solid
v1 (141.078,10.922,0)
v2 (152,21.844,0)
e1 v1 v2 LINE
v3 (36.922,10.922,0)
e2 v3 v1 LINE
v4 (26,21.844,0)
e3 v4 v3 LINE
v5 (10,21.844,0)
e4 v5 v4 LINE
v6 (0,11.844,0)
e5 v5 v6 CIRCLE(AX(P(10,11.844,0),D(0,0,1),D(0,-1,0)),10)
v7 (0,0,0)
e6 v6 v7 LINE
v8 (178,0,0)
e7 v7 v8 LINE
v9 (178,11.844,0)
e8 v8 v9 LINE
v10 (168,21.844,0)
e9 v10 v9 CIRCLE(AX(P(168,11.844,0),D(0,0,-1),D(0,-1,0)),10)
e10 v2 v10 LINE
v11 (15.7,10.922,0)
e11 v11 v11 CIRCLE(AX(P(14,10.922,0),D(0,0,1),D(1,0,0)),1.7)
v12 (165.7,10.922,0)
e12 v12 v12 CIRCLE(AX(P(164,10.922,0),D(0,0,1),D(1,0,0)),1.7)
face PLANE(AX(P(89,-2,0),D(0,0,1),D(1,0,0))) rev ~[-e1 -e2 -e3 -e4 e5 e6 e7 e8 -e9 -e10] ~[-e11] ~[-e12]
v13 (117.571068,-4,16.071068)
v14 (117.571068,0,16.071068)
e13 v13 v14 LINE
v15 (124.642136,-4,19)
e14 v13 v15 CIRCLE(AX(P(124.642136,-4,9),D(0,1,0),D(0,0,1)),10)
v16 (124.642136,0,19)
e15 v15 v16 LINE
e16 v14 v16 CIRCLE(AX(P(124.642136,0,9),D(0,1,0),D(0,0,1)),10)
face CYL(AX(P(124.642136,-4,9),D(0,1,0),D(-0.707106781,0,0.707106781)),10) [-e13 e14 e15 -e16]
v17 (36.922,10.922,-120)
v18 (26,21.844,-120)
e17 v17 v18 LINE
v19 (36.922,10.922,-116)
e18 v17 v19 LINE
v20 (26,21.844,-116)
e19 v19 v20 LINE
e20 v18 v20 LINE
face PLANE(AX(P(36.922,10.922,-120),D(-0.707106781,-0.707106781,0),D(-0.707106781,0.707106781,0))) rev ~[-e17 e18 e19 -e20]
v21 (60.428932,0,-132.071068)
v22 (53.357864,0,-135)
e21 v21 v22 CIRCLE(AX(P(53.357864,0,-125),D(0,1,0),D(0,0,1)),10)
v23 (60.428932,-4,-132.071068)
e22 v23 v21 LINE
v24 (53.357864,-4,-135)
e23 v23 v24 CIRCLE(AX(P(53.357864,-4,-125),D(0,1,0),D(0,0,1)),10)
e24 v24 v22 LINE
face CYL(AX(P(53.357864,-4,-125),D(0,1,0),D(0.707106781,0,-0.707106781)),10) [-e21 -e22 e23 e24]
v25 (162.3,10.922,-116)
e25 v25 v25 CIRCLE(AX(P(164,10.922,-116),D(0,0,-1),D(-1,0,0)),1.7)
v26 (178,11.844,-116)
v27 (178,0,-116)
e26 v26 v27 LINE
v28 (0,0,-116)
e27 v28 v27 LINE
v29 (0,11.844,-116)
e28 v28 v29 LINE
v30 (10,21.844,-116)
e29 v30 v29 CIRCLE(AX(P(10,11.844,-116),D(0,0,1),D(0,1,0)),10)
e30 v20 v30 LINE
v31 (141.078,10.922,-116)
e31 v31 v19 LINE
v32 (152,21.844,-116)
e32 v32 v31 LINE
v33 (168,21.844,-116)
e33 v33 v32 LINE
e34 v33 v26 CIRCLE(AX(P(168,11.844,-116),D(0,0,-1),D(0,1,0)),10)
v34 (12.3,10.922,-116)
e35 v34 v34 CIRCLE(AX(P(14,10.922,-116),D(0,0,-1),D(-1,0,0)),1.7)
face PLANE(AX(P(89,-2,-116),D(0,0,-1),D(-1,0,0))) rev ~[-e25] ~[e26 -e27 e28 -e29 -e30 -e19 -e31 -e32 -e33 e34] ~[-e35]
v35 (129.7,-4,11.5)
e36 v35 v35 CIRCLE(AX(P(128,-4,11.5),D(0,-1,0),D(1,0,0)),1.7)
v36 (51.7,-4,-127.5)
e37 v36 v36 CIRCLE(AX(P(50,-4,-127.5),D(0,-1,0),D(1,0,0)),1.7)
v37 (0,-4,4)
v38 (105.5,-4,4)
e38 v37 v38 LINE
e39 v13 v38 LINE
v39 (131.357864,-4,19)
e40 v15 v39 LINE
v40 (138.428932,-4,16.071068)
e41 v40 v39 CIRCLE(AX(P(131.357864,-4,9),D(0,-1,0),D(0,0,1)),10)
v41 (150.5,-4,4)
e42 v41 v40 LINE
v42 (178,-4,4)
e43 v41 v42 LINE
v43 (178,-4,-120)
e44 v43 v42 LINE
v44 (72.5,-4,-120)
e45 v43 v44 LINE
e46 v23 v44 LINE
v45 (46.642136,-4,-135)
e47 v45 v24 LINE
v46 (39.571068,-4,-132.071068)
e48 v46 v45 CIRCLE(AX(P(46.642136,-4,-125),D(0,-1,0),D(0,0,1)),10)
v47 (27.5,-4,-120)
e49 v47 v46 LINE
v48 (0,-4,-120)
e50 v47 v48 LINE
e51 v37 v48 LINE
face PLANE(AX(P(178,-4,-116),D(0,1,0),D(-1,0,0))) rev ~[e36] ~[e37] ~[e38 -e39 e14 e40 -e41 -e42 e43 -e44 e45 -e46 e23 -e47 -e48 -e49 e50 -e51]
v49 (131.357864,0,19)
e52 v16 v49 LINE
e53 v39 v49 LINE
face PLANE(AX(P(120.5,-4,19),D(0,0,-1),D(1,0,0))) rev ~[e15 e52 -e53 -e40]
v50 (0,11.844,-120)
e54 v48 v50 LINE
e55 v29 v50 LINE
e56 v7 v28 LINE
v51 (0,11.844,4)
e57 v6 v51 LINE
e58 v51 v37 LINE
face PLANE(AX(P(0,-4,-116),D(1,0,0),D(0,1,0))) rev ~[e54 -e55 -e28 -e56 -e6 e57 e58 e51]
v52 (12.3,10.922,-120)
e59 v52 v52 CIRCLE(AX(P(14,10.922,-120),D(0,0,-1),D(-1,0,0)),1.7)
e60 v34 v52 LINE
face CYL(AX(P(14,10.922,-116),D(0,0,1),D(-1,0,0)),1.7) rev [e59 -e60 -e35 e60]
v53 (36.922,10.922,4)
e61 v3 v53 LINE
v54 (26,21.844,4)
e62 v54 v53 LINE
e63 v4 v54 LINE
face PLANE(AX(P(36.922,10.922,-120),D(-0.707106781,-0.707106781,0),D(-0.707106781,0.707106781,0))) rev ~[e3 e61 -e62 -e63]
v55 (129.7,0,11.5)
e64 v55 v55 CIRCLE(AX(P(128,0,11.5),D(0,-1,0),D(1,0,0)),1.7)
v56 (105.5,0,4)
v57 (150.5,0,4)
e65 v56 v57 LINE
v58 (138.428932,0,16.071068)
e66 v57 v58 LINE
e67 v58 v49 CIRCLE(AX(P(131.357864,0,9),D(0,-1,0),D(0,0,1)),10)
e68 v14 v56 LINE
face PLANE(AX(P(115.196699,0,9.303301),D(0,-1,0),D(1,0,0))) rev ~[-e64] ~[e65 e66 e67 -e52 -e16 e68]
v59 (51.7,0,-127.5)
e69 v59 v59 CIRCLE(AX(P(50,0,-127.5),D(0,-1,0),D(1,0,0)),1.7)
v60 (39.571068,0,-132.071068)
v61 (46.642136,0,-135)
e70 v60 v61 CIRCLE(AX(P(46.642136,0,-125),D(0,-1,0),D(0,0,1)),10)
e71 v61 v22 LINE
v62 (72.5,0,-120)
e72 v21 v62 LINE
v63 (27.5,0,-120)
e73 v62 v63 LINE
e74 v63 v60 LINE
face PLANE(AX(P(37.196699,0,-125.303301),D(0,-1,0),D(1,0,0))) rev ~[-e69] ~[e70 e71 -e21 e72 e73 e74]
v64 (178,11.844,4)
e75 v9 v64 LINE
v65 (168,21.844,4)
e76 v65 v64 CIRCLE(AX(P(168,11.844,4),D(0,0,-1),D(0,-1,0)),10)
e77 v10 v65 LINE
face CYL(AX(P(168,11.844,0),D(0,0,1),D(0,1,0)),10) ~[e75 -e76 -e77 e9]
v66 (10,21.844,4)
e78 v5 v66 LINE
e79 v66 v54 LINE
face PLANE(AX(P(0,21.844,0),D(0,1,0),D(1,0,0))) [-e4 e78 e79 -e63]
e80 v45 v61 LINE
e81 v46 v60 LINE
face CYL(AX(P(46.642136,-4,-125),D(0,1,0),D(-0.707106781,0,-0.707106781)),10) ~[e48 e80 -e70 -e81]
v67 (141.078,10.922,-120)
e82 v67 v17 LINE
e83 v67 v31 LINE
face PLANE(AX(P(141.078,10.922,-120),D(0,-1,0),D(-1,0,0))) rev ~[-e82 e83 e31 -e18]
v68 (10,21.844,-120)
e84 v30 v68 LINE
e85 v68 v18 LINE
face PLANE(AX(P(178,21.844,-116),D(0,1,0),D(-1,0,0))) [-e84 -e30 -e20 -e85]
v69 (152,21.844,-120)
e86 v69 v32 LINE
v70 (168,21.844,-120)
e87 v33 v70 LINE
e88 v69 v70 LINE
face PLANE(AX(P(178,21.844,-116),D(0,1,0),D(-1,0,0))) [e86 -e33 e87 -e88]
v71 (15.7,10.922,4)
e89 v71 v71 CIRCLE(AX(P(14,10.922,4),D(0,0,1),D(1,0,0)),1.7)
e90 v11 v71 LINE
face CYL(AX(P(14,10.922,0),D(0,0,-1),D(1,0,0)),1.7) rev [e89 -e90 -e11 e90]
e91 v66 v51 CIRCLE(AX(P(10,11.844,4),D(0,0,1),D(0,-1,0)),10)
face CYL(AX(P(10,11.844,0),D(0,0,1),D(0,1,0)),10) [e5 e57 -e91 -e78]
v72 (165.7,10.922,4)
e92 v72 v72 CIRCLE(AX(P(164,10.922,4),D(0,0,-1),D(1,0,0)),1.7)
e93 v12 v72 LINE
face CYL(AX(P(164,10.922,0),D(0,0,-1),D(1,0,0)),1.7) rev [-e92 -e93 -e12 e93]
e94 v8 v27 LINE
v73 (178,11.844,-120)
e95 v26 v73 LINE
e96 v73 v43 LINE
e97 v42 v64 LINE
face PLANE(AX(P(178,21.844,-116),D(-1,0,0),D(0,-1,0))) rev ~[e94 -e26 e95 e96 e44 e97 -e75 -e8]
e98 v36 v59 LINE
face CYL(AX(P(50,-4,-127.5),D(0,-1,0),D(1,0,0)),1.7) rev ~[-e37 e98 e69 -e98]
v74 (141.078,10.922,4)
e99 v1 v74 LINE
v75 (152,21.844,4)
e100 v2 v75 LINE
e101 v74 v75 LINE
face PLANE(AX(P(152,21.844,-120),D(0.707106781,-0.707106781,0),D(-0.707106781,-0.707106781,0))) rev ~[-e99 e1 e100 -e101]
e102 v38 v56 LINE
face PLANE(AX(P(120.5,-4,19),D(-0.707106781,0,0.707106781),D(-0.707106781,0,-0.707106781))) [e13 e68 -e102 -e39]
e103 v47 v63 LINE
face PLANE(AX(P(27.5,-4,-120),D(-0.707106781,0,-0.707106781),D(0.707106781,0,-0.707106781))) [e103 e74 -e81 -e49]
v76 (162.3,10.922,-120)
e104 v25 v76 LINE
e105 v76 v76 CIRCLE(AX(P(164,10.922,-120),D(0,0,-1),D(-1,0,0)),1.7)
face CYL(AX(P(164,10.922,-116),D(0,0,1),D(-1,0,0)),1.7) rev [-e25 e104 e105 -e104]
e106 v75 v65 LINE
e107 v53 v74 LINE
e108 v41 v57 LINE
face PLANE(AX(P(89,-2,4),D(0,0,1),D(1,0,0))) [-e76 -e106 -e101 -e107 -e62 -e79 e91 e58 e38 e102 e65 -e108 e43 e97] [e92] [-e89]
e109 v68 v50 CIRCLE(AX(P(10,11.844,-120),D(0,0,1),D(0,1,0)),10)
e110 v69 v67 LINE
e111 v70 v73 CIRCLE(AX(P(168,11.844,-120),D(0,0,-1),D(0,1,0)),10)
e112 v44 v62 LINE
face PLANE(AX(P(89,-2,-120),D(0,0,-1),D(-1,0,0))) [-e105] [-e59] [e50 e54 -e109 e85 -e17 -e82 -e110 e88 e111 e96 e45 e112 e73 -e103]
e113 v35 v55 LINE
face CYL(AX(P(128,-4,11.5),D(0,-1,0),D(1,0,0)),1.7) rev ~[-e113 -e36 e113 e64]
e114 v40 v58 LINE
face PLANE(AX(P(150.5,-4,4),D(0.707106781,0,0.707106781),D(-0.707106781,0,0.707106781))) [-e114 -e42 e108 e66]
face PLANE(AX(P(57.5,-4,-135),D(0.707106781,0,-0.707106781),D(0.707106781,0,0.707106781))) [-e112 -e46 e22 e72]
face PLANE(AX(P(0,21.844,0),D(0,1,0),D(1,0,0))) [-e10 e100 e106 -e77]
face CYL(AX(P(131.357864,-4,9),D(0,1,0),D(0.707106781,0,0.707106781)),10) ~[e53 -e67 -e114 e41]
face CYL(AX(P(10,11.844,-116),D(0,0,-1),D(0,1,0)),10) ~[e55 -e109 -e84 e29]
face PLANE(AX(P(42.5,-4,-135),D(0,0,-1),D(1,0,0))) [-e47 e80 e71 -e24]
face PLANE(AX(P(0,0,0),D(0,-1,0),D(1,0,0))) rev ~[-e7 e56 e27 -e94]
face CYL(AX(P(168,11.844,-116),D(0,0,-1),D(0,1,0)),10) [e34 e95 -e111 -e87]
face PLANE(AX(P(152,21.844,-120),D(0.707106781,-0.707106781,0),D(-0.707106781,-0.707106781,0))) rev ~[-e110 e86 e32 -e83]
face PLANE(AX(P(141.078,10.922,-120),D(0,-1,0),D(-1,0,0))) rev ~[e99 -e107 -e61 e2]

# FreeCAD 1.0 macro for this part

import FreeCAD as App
import Part
import Sketcher
Q = App.Units.Quantity


def edges_at(feature, points):
    """Names of the edges that pass closest to the given points."""
    edges = feature.Shape.Edges
    near = lambda p: min(range(len(edges)), key=lambda i: edges[i].distToShape(Part.Vertex(*p))[0])
    return sorted({f"Edge{near(p) + 1}" for p in points})

doc = App.newDocument("Part")
params = doc.addObject("Spreadsheet::Sheet", "Params")
for row, (alias, value) in enumerate([
    ("sketch1_diameter", "3.4 mm"),
    ("sketch1_width", "178 mm"),
    ("pad1_length", "4 mm"),
    ("sketch2_width", "178 mm"),
    ("sketch2_height", "4 mm"),
    ("pad2_length", "116 mm"),
    ("sketch3_diameter", "3.4 mm"),
    ("sketch3_width", "178 mm"),
    ("pad3_length", "4 mm"),
    ("fillet_radius", "10 mm"),
    ("sketch4_diameter", "3.4 mm"),
    ("sketch4_width", "15 mm"),
    ("sketch4_width2", "45 mm"),
    ("pad4_length", "4 mm"),
    ("fillet2_radius", "10 mm"),
    ("sketch5_diameter", "3.4 mm"),
    ("sketch5_width", "126 mm"),
], start=1):
    params.set(f"A{row}", alias)
    params.set(f"B{row}", "=" + value)
    params.setAlias(f"B{row}", alias)

body = doc.addObject("PartDesign::Body", "Body")

sketch1 = body.newObject("Sketcher::SketchObject", "Sketch")
sketch1.AttachmentSupport = (doc.getObject("XY_Plane"), [""])
sketch1.MapMode = "FlatFace"
sketch1.addGeometry([
    Part.LineSegment(App.Vector(0, -4, 0), App.Vector(178, -4, 0)),
    Part.LineSegment(App.Vector(178, -4, 0), App.Vector(178, 21.8, 0)),
    Part.LineSegment(App.Vector(178, 21.8, 0), App.Vector(0, 21.8, 0)),
    Part.LineSegment(App.Vector(0, 21.8, 0), App.Vector(0, -4, 0)),
    Part.Circle(App.Vector(14, 10.9, 0), App.Vector(0, 0, 1), 1.7),
    Part.Circle(App.Vector(164, 10.9, 0), App.Vector(0, 0, 1), 1.7),
], False)
sketch1.addConstraint([
    Sketcher.Constraint("Coincident", 0, 2, 1, 1),
    Sketcher.Constraint("Coincident", 1, 2, 2, 1),
    Sketcher.Constraint("Coincident", 2, 2, 3, 1),
    Sketcher.Constraint("Coincident", 3, 2, 0, 1),
    Sketcher.Constraint("Horizontal", 0),
    Sketcher.Constraint("Vertical", 1),
    Sketcher.Constraint("Horizontal", 2),
    Sketcher.Constraint("Vertical", 3),
    Sketcher.Constraint("Equal", 4, 5),
    Sketcher.Constraint("PointOnObject", 2, 2, -2),
    Sketcher.Constraint("Horizontal", 4, 3, 5, 3),
    Sketcher.Constraint("Diameter", 4, Q("3.4 mm")),
    Sketcher.Constraint("DistanceX", 0, 1, 0, 2, Q("178 mm")),
    Sketcher.Constraint("DistanceX", -1, 1, 4, 3, Q("14 mm")),
    Sketcher.Constraint("DistanceX", -1, 1, 5, 3, Q("164 mm")),
    Sketcher.Constraint("DistanceY", 0, 2, -1, 1, Q("4 mm")),
    Sketcher.Constraint("DistanceY", 1, 1, 1, 2, Q("25.844 mm")),
    Sketcher.Constraint("DistanceY", -1, 1, 4, 3, Q("10.922 mm")),
])
sketch1.setExpression("Constraints[11]", "Params.sketch1_diameter")
sketch1.setExpression("Constraints[12]", "Params.sketch1_width")
pad1 = body.newObject("PartDesign::Pad", "Pad")
pad1.Profile = sketch1
pad1.setExpression("Length", "Params.pad1_length")

sketch2 = body.newObject("Sketcher::SketchObject", "Sketch001")
sketch2.AttachmentSupport = (doc.getObject("XY_Plane"), [""])
sketch2.MapMode = "FlatFace"
sketch2.addGeometry([
    Part.LineSegment(App.Vector(0, 0, 0), App.Vector(0, -4, 0)),
    Part.LineSegment(App.Vector(0, -4, 0), App.Vector(178, -4, 0)),
    Part.LineSegment(App.Vector(178, -4, 0), App.Vector(178, 0, 0)),
    Part.LineSegment(App.Vector(178, 0, 0), App.Vector(0, 0, 0)),
], False)
sketch2.addConstraint([
    Sketcher.Constraint("Coincident", 0, 2, 1, 1),
    Sketcher.Constraint("Coincident", 1, 2, 2, 1),
    Sketcher.Constraint("Coincident", 2, 2, 3, 1),
    Sketcher.Constraint("Coincident", 3, 2, 0, 1),
    Sketcher.Constraint("Vertical", 0),
    Sketcher.Constraint("Horizontal", 1),
    Sketcher.Constraint("Vertical", 2),
    Sketcher.Constraint("Horizontal", 3),
    Sketcher.Constraint("Coincident", 3, 2, -1, 1),
    Sketcher.Constraint("DistanceX", 1, 1, 1, 2, Q("178 mm")),
    Sketcher.Constraint("DistanceY", 0, 2, 0, 1, Q("4 mm")),
])
sketch2.setExpression("Constraints[9]", "Params.sketch2_width")
sketch2.setExpression("Constraints[10]", "Params.sketch2_height")
pad2 = body.newObject("PartDesign::Pad", "Pad001")
pad2.Profile = sketch2
pad2.setExpression("Length", "Params.pad2_length")
pad2.Reversed = True

sketch3 = body.newObject("Sketcher::SketchObject", "Sketch002")
sketch3.AttachmentSupport = (doc.getObject("XY_Plane"), [""])
sketch3.MapMode = "FlatFace"
sketch3.AttachmentOffset = App.Placement(App.Vector(0, 0, -116), App.Rotation())
sketch3.addGeometry([
    Part.LineSegment(App.Vector(178, -4, 0), App.Vector(0, -4, 0)),
    Part.LineSegment(App.Vector(0, -4, 0), App.Vector(0, 21.8, 0)),
    Part.LineSegment(App.Vector(0, 21.8, 0), App.Vector(178, 21.8, 0)),
    Part.LineSegment(App.Vector(178, 21.8, 0), App.Vector(178, -4, 0)),
    Part.Circle(App.Vector(164, 10.9, 0), App.Vector(0, 0, 1), 1.7),
    Part.Circle(App.Vector(14, 10.9, 0), App.Vector(0, 0, 1), 1.7),
], False)
sketch3.addConstraint([
    Sketcher.Constraint("Coincident", 0, 2, 1, 1),
    Sketcher.Constraint("Coincident", 1, 2, 2, 1),
    Sketcher.Constraint("Coincident", 2, 2, 3, 1),
    Sketcher.Constraint("Coincident", 3, 2, 0, 1),
    Sketcher.Constraint("Horizontal", 0),
    Sketcher.Constraint("Vertical", 1),
    Sketcher.Constraint("Horizontal", 2),
    Sketcher.Constraint("Vertical", 3),
    Sketcher.Constraint("Equal", 4, 5),
    Sketcher.Constraint("PointOnObject", 0, 2, -2),
    Sketcher.Constraint("Horizontal", 4, 3, 5, 3),
    Sketcher.Constraint("Diameter", 4, Q("3.4 mm")),
    Sketcher.Constraint("DistanceX", 0, 2, 0, 1, Q("178 mm")),
    Sketcher.Constraint("DistanceX", -1, 1, 4, 3, Q("164 mm")),
    Sketcher.Constraint("DistanceX", -1, 1, 5, 3, Q("14 mm")),
    Sketcher.Constraint("DistanceY", 0, 2, -1, 1, Q("4 mm")),
    Sketcher.Constraint("DistanceY", 1, 1, 1, 2, Q("25.844 mm")),
    Sketcher.Constraint("DistanceY", -1, 1, 4, 3, Q("10.922 mm")),
])
sketch3.setExpression("Constraints[11]", "Params.sketch3_diameter")
sketch3.setExpression("Constraints[12]", "Params.sketch3_width")
pad3 = body.newObject("PartDesign::Pad", "Pad002")
pad3.Profile = sketch3
pad3.setExpression("Length", "Params.pad3_length")
pad3.Reversed = True
doc.recompute()

fillet = body.newObject("PartDesign::Fillet", "Fillet")
fillet.Base = (pad3, edges_at(pad3, [
    (0, 21.844, 2),
    (178, 21.844, 2),
    (0, 21.844, -118),
    (178, 21.844, -118),
]))
fillet.setExpression("Radius", "Params.fillet_radius")

sketch4 = body.newObject("Sketcher::SketchObject", "Sketch003")
sketch4.AttachmentSupport = (doc.getObject("XZ_Plane"), [""])
sketch4.MapMode = "FlatFace"
sketch4.AttachmentOffset = App.Placement(App.Vector(0, 0, 4), App.Rotation())
sketch4.addGeometry([
    Part.LineSegment(App.Vector(27.5, -120, 0), App.Vector(42.5, -135, 0)),
    Part.LineSegment(App.Vector(42.5, -135, 0), App.Vector(57.5, -135, 0)),
    Part.LineSegment(App.Vector(57.5, -135, 0), App.Vector(72.5, -120, 0)),
    Part.LineSegment(App.Vector(72.5, -120, 0), App.Vector(27.5, -120, 0)),
    Part.Circle(App.Vector(50, -127.5, 0), App.Vector(0, 0, 1), 1.7),
    Part.LineSegment(App.Vector(105.5, 4, 0), App.Vector(150.5, 4, 0)),
    Part.LineSegment(App.Vector(150.5, 4, 0), App.Vector(135.5, 19, 0)),
    Part.LineSegment(App.Vector(135.5, 19, 0), App.Vector(120.5, 19, 0)),
    Part.LineSegment(App.Vector(120.5, 19, 0), App.Vector(105.5, 4, 0)),
    Part.Circle(App.Vector(128, 11.5, 0), App.Vector(0, 0, 1), 1.7),
], False)
sketch4.addConstraint([
    Sketcher.Constraint("Coincident", 0, 2, 1, 1),
    Sketcher.Constraint("Coincident", 1, 2, 2, 1),
    Sketcher.Constraint("Coincident", 2, 2, 3, 1),
    Sketcher.Constraint("Coincident", 3, 2, 0, 1),
    Sketcher.Constraint("Coincident", 5, 2, 6, 1),
    Sketcher.Constraint("Coincident", 6, 2, 7, 1),
    Sketcher.Constraint("Coincident", 7, 2, 8, 1),
    Sketcher.Constraint("Coincident", 8, 2, 5, 1),
    Sketcher.Constraint("Horizontal", 1),
    Sketcher.Constraint("Horizontal", 3),
    Sketcher.Constraint("Horizontal", 5),
    Sketcher.Constraint("Horizontal", 7),
    Sketcher.Constraint("Equal", 4, 9),
    Sketcher.Constraint("Perpendicular", 0, 2),
    Sketcher.Constraint("Perpendicular", 2, 6),
    Sketcher.Constraint("Perpendicular", 6, 8),
    Sketcher.Constraint("Equal", 3, 5),
    Sketcher.Constraint("Equal", 1, 7),
    Sketcher.Constraint("Equal", 0, 2),
    Sketcher.Constraint("Diameter", 4, Q("3.4 mm")),
    Sketcher.Constraint("DistanceX", 1, 1, 1, 2, Q("15 mm")),
    Sketcher.Constraint("DistanceX", 3, 2, 3, 1, Q("45 mm")),
    Sketcher.Constraint("DistanceX", -1, 1, 4, 3, Q("50 mm")),
    Sketcher.Constraint("DistanceX", -1, 1, 9, 3, Q("128 mm")),
    Sketcher.Constraint("DistanceY", 0, 2, -1, 1, Q("135 mm")),
    Sketcher.Constraint("DistanceY", -1, 1, 5, 2, Q("4 mm")),
    Sketcher.Constraint("DistanceY", 4, 3, 9, 3, Q("139 mm")),
    Sketcher.Constraint("DistanceX", 2, 2, 5, 2, Q("78 mm")),
    Sketcher.Constraint("DistanceY", 4, 3, -1, 1, Q("127.5 mm")),
    Sketcher.Constraint("DistanceX", -1, 1, 0, 2, Q("42.5 mm")),
])
sketch4.setExpression("Constraints[19]", "Params.sketch4_diameter")
sketch4.setExpression("Constraints[20]", "Params.sketch4_width")
sketch4.setExpression("Constraints[21]", "Params.sketch4_width2")
pad4 = body.newObject("PartDesign::Pad", "Pad003")
pad4.Profile = sketch4
pad4.setExpression("Length", "Params.pad4_length")
pad4.Reversed = True
doc.recompute()

fillet2 = body.newObject("PartDesign::Fillet", "Fillet001")
fillet2.Base = (pad4, edges_at(pad4, [
    (120.5, -2, 19),
    (135.5, -2, 19),
    (42.5, -2, -135),
    (57.5, -2, -135),
]))
fillet2.setExpression("Radius", "Params.fillet2_radius")

sketch5 = body.newObject("Sketcher::SketchObject", "Sketch004")
sketch5.AttachmentSupport = (doc.getObject("XY_Plane"), [""])
sketch5.MapMode = "FlatFace"
sketch5.AttachmentOffset = App.Placement(App.Vector(0, 0, -120), App.Rotation())
sketch5.addGeometry([
    Part.Circle(App.Vector(164, 10.9, 0), App.Vector(0, 0, 1), 1.7),
    Part.LineSegment(App.Vector(152, 21.8, 0), App.Vector(141.1, 10.9, 0)),
    Part.LineSegment(App.Vector(141.1, 10.9, 0), App.Vector(36.9, 10.9, 0)),
    Part.LineSegment(App.Vector(36.9, 10.9, 0), App.Vector(26, 21.8, 0)),
    Part.LineSegment(App.Vector(26, 21.8, 0), App.Vector(152, 21.8, 0)),
], False)
sketch5.addConstraint([
    Sketcher.Constraint("Coincident", 1, 2, 2, 1),
    Sketcher.Constraint("Coincident", 2, 2, 3, 1),
    Sketcher.Constraint("Coincident", 3, 2, 4, 1),
    Sketcher.Constraint("Coincident", 4, 2, 1, 1),
    Sketcher.Constraint("Horizontal", 2),
    Sketcher.Constraint("Horizontal", 4),
    Sketcher.Constraint("Perpendicular", 1, 3),
    Sketcher.Constraint("Horizontal", 0, 3, 1, 2),
    Sketcher.Constraint("Equal", 1, 3),
    Sketcher.Constraint("Diameter", 0, Q("3.4 mm")),
    Sketcher.Constraint("DistanceX", 4, 1, 4, 2, Q("126 mm")),
    Sketcher.Constraint("DistanceX", -1, 1, 0, 3, Q("164 mm")),
    Sketcher.Constraint("DistanceX", -1, 1, 3, 2, Q("26 mm")),
    Sketcher.Constraint("DistanceX", 2, 2, 2, 1, Q("104.156 mm")),
    Sketcher.Constraint("DistanceY", -1, 1, 0, 3, Q("10.922 mm")),
])
sketch5.setExpression("Constraints[9]", "Params.sketch5_diameter")
sketch5.setExpression("Constraints[10]", "Params.sketch5_width")
pocket1 = body.newObject("PartDesign::Pocket", "Pocket")
pocket1.Profile = sketch5
pocket1.Type = "ThroughAll"
pocket1.Midplane = True

doc.recompute()
